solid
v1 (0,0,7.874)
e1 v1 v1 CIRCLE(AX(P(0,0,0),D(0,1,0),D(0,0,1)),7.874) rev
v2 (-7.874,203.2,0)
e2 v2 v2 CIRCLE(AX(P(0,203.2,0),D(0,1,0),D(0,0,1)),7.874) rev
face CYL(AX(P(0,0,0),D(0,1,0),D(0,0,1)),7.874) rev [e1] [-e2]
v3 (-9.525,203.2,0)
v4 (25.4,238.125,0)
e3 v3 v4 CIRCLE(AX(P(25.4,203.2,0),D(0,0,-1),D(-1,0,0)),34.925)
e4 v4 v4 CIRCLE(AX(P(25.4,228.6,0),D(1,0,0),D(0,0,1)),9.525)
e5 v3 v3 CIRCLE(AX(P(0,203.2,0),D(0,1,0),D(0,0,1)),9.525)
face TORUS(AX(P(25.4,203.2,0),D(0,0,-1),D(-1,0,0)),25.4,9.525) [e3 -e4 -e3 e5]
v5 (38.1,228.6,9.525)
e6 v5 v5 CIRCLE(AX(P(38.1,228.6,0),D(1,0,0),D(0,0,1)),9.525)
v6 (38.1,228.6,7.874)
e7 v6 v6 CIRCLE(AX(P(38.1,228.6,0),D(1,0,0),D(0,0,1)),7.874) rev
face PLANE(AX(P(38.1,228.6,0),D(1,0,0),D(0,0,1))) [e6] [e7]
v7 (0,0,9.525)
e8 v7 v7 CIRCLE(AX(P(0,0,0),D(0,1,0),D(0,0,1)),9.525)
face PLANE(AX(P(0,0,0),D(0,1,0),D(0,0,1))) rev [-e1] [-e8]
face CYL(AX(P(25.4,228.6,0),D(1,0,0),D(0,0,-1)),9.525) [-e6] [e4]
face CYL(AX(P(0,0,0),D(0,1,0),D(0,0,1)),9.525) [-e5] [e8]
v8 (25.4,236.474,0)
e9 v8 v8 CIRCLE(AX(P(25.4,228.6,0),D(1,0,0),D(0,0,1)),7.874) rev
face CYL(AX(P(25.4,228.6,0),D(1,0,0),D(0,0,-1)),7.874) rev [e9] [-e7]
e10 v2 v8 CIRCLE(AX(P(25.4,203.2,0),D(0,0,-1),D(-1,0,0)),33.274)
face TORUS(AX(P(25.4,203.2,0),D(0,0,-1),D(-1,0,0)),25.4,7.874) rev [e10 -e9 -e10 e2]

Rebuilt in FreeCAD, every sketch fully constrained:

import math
import FreeCAD as App
import Part
import Sketcher

V = App.Vector
Q = App.Units.Quantity

doc = App.newDocument("Part")
params = doc.addObject("Spreadsheet::Sheet", "Params")
for row, (alias, value) in enumerate([
    ("sketch1_diameter", "0.75 in"),
    ("sketch1_diameter2", "0.62 in"),
    ("sketch2_radius", "1 in"),
    ("sketch2_height", "8 in"),
    ("sketch2_width", "0.5 in"),
], start=1):
    params.set(f"A{row}", alias)
    params.set(f"B{row}", "=" + value)
    params.setAlias(f"B{row}", alias)

body = doc.addObject("PartDesign::Body", "Body")

# Sketch on XZ plane
sketch1 = body.newObject("Sketcher::SketchObject", "Sketch")
sketch1.AttachmentSupport = (doc.getObject("XZ_Plane"), [""])
sketch1.MapMode = "FlatFace"
sketch1.addGeometry([
    Part.Circle(V(0, 0, 0), V(0, 0, 1), 10),
    Part.Circle(V(0, 0, 0), V(0, 0, 1), 8),
], False)
sketch1.addConstraint([
    Sketcher.Constraint("Coincident", 0, 3, -1, 1),
    Sketcher.Constraint("Coincident", 1, 3, -1, 1),
    Sketcher.Constraint("Diameter", 0, Q("0.75 in")),
    Sketcher.Constraint("Diameter", 1, Q("0.62 in")),
])
sketch1.setExpression("Constraints[2]", "Params.sketch1_diameter")
sketch1.setExpression("Constraints[3]", "Params.sketch1_diameter2")

# Sketch on XY plane
sketch2 = body.newObject("Sketcher::SketchObject", "Sketch001")
sketch2.AttachmentSupport = (doc.getObject("XY_Plane"), [""])
sketch2.MapMode = "FlatFace"
sketch2.addGeometry([
    Part.LineSegment(V(0, 0, 0), V(0, 203, 0)),
    Part.ArcOfCircle(Part.Circle(V(25, 203, 0), V(0, 0, 1), 25), math.radians(90), math.radians(180)),
    Part.LineSegment(V(25, 229, 0), V(38, 229, 0)),
], False)
sketch2.addConstraint([
    Sketcher.Constraint("Tangent", 0, 2, 1, 2),
    Sketcher.Constraint("Tangent", 1, 1, 2, 1),
    Sketcher.Constraint("Vertical", 0),
    Sketcher.Constraint("Horizontal", 2),
    Sketcher.Constraint("Coincident", 0, 1, -1, 1),
    Sketcher.Constraint("Radius", 1, Q("1 in")),
    Sketcher.Constraint("DistanceY", 0, 1, 0, 2, Q("8 in")),
    Sketcher.Constraint("DistanceX", 2, 1, 2, 2, Q("0.5 in")),
])
sketch2.setExpression("Constraints[5]", "Params.sketch2_radius")
sketch2.setExpression("Constraints[6]", "Params.sketch2_height")
sketch2.setExpression("Constraints[7]", "Params.sketch2_width")
doc.recompute()

additivepipe = body.newObject("PartDesign::AdditivePipe", "AdditivePipe")
additivepipe.Profile = sketch1
additivepipe.Spine = (sketch2, ["Edge1", "Edge2", "Edge3"])

doc.recompute()
